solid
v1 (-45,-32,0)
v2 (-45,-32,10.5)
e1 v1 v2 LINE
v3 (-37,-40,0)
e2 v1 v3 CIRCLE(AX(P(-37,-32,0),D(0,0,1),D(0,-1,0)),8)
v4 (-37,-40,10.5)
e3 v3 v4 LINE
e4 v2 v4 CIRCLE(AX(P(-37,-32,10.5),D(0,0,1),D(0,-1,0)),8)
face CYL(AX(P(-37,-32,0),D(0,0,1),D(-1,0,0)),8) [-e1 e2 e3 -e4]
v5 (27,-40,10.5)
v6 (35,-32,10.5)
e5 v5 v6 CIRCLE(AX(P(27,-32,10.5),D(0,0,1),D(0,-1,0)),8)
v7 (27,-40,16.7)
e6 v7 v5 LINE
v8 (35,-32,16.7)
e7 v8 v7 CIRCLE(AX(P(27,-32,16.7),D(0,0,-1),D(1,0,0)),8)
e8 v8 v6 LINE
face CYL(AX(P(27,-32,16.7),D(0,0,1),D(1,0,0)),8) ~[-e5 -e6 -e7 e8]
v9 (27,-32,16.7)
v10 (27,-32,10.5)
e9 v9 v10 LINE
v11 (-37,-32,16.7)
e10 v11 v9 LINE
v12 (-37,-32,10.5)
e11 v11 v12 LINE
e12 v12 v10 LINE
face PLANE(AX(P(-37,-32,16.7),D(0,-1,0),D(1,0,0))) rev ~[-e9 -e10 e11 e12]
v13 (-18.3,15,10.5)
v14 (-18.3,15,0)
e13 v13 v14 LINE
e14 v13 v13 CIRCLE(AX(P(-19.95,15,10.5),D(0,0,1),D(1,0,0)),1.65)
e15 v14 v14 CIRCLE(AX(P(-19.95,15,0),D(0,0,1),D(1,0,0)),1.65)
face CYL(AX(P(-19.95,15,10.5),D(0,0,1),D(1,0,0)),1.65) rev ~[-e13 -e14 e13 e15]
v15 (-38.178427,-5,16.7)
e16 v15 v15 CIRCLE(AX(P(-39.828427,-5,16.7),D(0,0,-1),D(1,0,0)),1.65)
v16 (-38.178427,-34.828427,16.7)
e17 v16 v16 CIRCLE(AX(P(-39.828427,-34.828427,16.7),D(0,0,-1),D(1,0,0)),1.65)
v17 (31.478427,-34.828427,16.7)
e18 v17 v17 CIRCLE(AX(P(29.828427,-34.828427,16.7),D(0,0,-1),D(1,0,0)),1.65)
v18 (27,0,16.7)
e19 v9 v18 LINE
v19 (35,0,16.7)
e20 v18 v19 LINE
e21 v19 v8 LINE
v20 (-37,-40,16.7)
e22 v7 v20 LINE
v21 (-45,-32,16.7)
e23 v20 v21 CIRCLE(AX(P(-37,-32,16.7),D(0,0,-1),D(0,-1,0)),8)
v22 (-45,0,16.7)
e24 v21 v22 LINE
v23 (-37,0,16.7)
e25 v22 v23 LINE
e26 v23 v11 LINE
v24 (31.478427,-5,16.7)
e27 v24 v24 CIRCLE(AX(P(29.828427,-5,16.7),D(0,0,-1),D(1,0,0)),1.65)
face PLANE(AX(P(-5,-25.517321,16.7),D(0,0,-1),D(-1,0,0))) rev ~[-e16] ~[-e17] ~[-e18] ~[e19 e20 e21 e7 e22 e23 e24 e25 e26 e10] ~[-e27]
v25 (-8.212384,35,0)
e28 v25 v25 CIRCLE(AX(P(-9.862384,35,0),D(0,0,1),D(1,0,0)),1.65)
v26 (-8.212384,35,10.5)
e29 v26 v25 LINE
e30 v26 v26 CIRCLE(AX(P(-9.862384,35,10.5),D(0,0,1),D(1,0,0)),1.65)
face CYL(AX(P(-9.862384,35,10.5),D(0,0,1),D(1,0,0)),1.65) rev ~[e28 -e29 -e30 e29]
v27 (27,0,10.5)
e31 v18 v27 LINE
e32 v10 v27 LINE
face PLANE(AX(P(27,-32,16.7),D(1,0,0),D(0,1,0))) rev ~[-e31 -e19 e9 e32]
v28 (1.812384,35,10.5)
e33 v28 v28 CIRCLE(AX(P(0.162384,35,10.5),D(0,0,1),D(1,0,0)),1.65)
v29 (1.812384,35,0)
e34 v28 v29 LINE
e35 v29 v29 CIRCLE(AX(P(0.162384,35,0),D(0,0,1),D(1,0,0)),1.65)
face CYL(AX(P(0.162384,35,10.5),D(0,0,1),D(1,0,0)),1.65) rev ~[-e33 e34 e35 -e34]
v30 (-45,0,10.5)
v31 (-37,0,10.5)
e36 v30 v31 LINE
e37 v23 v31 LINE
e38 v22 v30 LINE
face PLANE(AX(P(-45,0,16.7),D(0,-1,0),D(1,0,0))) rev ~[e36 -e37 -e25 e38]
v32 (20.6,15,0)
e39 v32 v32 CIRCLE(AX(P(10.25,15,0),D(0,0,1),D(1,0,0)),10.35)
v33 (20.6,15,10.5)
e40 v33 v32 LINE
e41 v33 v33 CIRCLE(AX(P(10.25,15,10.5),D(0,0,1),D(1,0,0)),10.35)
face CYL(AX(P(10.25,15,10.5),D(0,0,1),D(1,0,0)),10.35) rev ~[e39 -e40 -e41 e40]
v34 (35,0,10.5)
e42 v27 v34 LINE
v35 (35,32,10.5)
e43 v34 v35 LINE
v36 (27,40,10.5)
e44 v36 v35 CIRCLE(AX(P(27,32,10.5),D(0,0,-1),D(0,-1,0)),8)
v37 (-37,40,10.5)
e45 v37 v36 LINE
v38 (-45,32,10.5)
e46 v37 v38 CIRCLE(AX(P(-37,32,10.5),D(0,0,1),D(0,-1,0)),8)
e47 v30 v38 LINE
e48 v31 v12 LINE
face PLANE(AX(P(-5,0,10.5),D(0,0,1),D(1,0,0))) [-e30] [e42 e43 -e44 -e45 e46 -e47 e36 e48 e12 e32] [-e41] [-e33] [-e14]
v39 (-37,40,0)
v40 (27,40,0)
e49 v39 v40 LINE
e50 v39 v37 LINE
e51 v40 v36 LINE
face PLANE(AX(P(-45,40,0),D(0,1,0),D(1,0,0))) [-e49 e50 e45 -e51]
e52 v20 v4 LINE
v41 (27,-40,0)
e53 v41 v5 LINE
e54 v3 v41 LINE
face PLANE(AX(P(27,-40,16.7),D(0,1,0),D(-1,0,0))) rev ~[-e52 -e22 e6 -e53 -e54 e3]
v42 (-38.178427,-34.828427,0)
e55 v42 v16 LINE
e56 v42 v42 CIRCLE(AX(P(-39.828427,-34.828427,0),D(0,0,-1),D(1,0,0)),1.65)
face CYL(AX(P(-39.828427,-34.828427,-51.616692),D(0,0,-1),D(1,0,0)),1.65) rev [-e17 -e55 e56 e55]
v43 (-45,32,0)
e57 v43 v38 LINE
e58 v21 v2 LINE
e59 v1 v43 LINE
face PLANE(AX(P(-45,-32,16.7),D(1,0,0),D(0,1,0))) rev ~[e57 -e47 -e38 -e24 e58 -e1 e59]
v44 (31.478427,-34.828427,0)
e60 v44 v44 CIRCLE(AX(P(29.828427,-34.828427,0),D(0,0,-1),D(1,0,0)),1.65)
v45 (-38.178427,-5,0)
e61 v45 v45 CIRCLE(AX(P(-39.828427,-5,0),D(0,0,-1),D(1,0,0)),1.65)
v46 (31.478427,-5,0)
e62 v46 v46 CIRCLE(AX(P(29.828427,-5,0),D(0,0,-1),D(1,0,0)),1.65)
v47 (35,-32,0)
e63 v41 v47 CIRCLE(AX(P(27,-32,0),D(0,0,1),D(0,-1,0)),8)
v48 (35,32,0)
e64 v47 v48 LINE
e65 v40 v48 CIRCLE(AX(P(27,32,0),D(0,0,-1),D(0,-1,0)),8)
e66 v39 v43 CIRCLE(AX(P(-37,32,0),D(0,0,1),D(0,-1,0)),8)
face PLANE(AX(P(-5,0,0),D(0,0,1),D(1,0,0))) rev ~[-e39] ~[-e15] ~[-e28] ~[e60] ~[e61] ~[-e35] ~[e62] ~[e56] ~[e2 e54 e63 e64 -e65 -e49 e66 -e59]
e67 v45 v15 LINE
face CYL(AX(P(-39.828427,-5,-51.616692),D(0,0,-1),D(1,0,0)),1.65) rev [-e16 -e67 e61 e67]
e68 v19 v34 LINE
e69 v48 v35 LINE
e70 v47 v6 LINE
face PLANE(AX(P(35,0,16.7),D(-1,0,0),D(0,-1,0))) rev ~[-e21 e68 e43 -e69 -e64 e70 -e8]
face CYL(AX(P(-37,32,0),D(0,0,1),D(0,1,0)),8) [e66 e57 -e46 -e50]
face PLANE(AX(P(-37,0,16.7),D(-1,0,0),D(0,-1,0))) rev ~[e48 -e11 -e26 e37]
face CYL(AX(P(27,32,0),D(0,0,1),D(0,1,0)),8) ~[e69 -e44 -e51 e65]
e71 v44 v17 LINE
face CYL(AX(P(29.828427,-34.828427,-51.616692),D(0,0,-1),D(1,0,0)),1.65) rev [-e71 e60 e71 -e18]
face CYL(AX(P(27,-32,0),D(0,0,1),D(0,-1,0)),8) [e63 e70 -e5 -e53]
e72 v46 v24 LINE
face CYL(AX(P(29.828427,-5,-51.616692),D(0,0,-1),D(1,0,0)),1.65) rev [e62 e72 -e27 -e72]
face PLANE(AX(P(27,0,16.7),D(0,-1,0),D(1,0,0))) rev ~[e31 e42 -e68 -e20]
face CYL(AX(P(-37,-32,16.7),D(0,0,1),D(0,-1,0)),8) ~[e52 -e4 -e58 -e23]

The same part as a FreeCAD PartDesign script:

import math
import FreeCAD as App
import Part
import Sketcher

V = App.Vector


def edges_at(feature, points):
    """Names of the edges that pass closest to the given points."""
    edges = feature.Shape.Edges
    near = lambda p: min(range(len(edges)), key=lambda i: edges[i].distToShape(Part.Vertex(*p))[0])
    return sorted({f"Edge{near(p) + 1}" for p in points})

doc = App.newDocument("Part")
body = doc.addObject("PartDesign::Body", "Body")

sketch1 = body.newObject("Sketcher::SketchObject", "Sketch")
sketch1.AttachmentSupport = (doc.getObject("XY_Plane"), [""])
sketch1.MapMode = "FlatFace"
sketch1.addGeometry([
    Part.LineSegment(V(-45, 40, 0), V(-45, -40, 0)),
    Part.LineSegment(V(-45, -40, 0), V(35, -40, 0)),
    Part.LineSegment(V(35, -40, 0), V(35, 40, 0)),
    Part.LineSegment(V(35, 40, 0), V(-45, 40, 0)),
], False)
sketch1.addConstraint([
    Sketcher.Constraint("Coincident", 0, 2, 1, 1),
    Sketcher.Constraint("Coincident", 1, 2, 2, 1),
    Sketcher.Constraint("Coincident", 2, 2, 3, 1),
    Sketcher.Constraint("Coincident", 3, 2, 0, 1),
    Sketcher.Constraint("Vertical", 0),
    Sketcher.Constraint("Horizontal", 1),
    Sketcher.Constraint("Vertical", 2),
    Sketcher.Constraint("Horizontal", 3),
    Sketcher.Constraint("Equal", 3, 0),
    Sketcher.Constraint("DistanceX", 1, 1, 1, 2, 80.0),
    Sketcher.Constraint("DistanceX", 0, 2, -1, 1, 45.0),
    Sketcher.Constraint("DistanceY", 0, 2, -1, 1, 40.0),
])
pad1 = body.newObject("PartDesign::Pad", "Pad")
pad1.Profile = sketch1
pad1.Length = 10.5

sketch2 = body.newObject("Sketcher::SketchObject", "Sketch001")
sketch2.AttachmentSupport = (doc.getObject("XY_Plane"), [""])
sketch2.MapMode = "FlatFace"
sketch2.AttachmentOffset = App.Placement(V(0, 0, 10.5), App.Rotation())
sketch2.addGeometry([
    Part.Circle(V(-19.95, 15, 0), V(0, 0, 1), 1.65),
    Part.Circle(V(-9.862384, 35, 0), V(0, 0, 1), 1.65),
    Part.Circle(V(0.162384, 35, 0), V(0, 0, 1), 1.65),
    Part.Circle(V(10.25, 15, 0), V(0, 0, 1), 10.35),
], False)
sketch2.addConstraint([
    Sketcher.Constraint("Equal", 0, 1),
    Sketcher.Constraint("Equal", 1, 2),
    Sketcher.Constraint("Horizontal", 1, 3, 2, 3),
    Sketcher.Constraint("Horizontal", 0, 3, 3, 3),
    Sketcher.Constraint("Diameter", 0, 3.3),
    Sketcher.Constraint("Diameter", 3, 20.7),
    Sketcher.Constraint("DistanceY", -1, 1, 0, 3, 15.0),
    Sketcher.Constraint("DistanceY", -1, 1, 1, 3, 35.0),
    Sketcher.Constraint("DistanceX", 0, 3, 3, 3, 30.2),
    Sketcher.Constraint("DistanceX", 0, 3, -1, 1, 19.95),
    Sketcher.Constraint("DistanceX", 1, 3, -1, 1, 9.862384),
    Sketcher.Constraint("DistanceX", -1, 1, 2, 3, 0.162384),
])
pocket1 = body.newObject("PartDesign::Pocket", "Pocket")
pocket1.Profile = sketch2
pocket1.Type = "ThroughAll"
doc.recompute()

fillet = body.newObject("PartDesign::Fillet", "Fillet")
fillet.Base = (pocket1, edges_at(pocket1, [(35, 40, 5.25)]))
fillet.Radius = 8
doc.recompute()

fillet2 = body.newObject("PartDesign::Fillet", "Fillet001")
fillet2.Base = (fillet, edges_at(fillet, [(-45, 40, 5.25)]))
fillet2.Radius = 8
doc.recompute()

fillet3 = body.newObject("PartDesign::Fillet", "Fillet002")
fillet3.Base = (fillet2, edges_at(fillet2, [(-45, -40, 5.25)]))
fillet3.Radius = 8
doc.recompute()

fillet4 = body.newObject("PartDesign::Fillet", "Fillet003")
fillet4.Base = (fillet3, edges_at(fillet3, [(35, -40, 5.25)]))
fillet4.Radius = 8

sketch3 = body.newObject("Sketcher::SketchObject", "Sketch002")
sketch3.AttachmentSupport = (doc.getObject("XY_Plane"), [""])
sketch3.MapMode = "FlatFace"
sketch3.AttachmentOffset = App.Placement(V(0, 0, 16.7), App.Rotation())
sketch3.addGeometry([
    Part.LineSegment(V(-37, 0, 0), V(-45, 0, 0)),
    Part.LineSegment(V(-45, 0, 0), V(-45, -32, 0)),
    Part.ArcOfCircle(Part.Circle(V(-37, -32, 0), V(0, 0, 1), 8), math.radians(-180), math.radians(-90)),
    Part.LineSegment(V(-37, -40, 0), V(27, -40, 0)),
    Part.ArcOfCircle(Part.Circle(V(27, -32, 0), V(0, 0, 1), 8), math.radians(-90), math.radians(0)),
    Part.LineSegment(V(35, -32, 0), V(35, 0, 0)),
    Part.LineSegment(V(35, 0, 0), V(27, 0, 0)),
    Part.LineSegment(V(27, 0, 0), V(27, -32, 0)),
    Part.LineSegment(V(27, -32, 0), V(-37, -32, 0)),
    Part.LineSegment(V(-37, -32, 0), V(-37, 0, 0)),
], False)
sketch3.addConstraint([
    Sketcher.Constraint("Coincident", 0, 2, 1, 1),
    Sketcher.Constraint("Tangent", 1, 2, 2, 1),
    Sketcher.Constraint("Tangent", 2, 2, 3, 1),
    Sketcher.Constraint("Tangent", 3, 2, 4, 1),
    Sketcher.Constraint("Tangent", 4, 2, 5, 1),
    Sketcher.Constraint("Coincident", 5, 2, 6, 1),
    Sketcher.Constraint("Coincident", 6, 2, 7, 1),
    Sketcher.Constraint("Coincident", 7, 2, 8, 1),
    Sketcher.Constraint("Coincident", 8, 2, 9, 1),
    Sketcher.Constraint("Coincident", 9, 2, 0, 1),
    Sketcher.Constraint("Horizontal", 0),
    Sketcher.Constraint("Vertical", 1),
    Sketcher.Constraint("Horizontal", 3),
    Sketcher.Constraint("Vertical", 5),
    Sketcher.Constraint("Horizontal", 6),
    Sketcher.Constraint("Vertical", 7),
    Sketcher.Constraint("Horizontal", 8),
    Sketcher.Constraint("Vertical", 9),
    Sketcher.Constraint("Coincident", 7, 2, 4, 3),
    Sketcher.Constraint("Coincident", 8, 2, 2, 3),
    Sketcher.Constraint("PointOnObject", 0, 2, -1),
    Sketcher.Constraint("PointOnObject", 5, 2, -1),
    Sketcher.Constraint("Radius", 2, 8.0),
    Sketcher.Constraint("DistanceX", 3, 1, 3, 2, 64.0),
    Sketcher.Constraint("DistanceY", 1, 2, 1, 1, 32.0),
    Sketcher.Constraint("DistanceX", 2, 3, -1, 1, 37.0),
])
pad2 = body.newObject("PartDesign::Pad", "Pad001")
pad2.Profile = sketch3
pad2.Length = 6.2
pad2.Reversed = True

sketch4 = body.newObject("Sketcher::SketchObject", "Sketch003")
sketch4.AttachmentSupport = (doc.getObject("XY_Plane"), [""])
sketch4.MapMode = "FlatFace"
sketch4.AttachmentOffset = App.Placement(V(0, 0, 10.5), App.Rotation())
sketch4.addGeometry([
    Part.Circle(V(29.828427, -34.828427, 0), V(0, 0, 1), 1.65),
    Part.Circle(V(-39.828427, -34.828427, 0), V(0, 0, 1), 1.65),
    Part.Circle(V(-39.828427, -5, 0), V(0, 0, 1), 1.65),
    Part.Circle(V(29.828427, -5, 0), V(0, 0, 1), 1.65),
], False)
sketch4.addConstraint([
    Sketcher.Constraint("Equal", 0, 1),
    Sketcher.Constraint("Equal", 1, 2),
    Sketcher.Constraint("Equal", 2, 3),
    Sketcher.Constraint("Horizontal", 0, 3, 1, 3),
    Sketcher.Constraint("Horizontal", 2, 3, 3, 3),
    Sketcher.Constraint("Vertical", 1, 3, 2, 3),
    Sketcher.Constraint("Vertical", 0, 3, 3, 3),
    Sketcher.Constraint("Diameter", 0, 3.3),
    Sketcher.Constraint("DistanceY", 2, 3, -1, 1, 5.0),
    Sketcher.Constraint("DistanceX", -1, 1, 0, 3, 29.828427),
    Sketcher.Constraint("DistanceY", 0, 3, -1, 1, 34.828427),
    Sketcher.Constraint("DistanceX", 1, 3, -1, 1, 39.828427),
])
pocket2 = body.newObject("PartDesign::Pocket", "Pocket001")
pocket2.Profile = sketch4
pocket2.Type = "ThroughAll"
pocket2.Midplane = True

doc.recompute()
